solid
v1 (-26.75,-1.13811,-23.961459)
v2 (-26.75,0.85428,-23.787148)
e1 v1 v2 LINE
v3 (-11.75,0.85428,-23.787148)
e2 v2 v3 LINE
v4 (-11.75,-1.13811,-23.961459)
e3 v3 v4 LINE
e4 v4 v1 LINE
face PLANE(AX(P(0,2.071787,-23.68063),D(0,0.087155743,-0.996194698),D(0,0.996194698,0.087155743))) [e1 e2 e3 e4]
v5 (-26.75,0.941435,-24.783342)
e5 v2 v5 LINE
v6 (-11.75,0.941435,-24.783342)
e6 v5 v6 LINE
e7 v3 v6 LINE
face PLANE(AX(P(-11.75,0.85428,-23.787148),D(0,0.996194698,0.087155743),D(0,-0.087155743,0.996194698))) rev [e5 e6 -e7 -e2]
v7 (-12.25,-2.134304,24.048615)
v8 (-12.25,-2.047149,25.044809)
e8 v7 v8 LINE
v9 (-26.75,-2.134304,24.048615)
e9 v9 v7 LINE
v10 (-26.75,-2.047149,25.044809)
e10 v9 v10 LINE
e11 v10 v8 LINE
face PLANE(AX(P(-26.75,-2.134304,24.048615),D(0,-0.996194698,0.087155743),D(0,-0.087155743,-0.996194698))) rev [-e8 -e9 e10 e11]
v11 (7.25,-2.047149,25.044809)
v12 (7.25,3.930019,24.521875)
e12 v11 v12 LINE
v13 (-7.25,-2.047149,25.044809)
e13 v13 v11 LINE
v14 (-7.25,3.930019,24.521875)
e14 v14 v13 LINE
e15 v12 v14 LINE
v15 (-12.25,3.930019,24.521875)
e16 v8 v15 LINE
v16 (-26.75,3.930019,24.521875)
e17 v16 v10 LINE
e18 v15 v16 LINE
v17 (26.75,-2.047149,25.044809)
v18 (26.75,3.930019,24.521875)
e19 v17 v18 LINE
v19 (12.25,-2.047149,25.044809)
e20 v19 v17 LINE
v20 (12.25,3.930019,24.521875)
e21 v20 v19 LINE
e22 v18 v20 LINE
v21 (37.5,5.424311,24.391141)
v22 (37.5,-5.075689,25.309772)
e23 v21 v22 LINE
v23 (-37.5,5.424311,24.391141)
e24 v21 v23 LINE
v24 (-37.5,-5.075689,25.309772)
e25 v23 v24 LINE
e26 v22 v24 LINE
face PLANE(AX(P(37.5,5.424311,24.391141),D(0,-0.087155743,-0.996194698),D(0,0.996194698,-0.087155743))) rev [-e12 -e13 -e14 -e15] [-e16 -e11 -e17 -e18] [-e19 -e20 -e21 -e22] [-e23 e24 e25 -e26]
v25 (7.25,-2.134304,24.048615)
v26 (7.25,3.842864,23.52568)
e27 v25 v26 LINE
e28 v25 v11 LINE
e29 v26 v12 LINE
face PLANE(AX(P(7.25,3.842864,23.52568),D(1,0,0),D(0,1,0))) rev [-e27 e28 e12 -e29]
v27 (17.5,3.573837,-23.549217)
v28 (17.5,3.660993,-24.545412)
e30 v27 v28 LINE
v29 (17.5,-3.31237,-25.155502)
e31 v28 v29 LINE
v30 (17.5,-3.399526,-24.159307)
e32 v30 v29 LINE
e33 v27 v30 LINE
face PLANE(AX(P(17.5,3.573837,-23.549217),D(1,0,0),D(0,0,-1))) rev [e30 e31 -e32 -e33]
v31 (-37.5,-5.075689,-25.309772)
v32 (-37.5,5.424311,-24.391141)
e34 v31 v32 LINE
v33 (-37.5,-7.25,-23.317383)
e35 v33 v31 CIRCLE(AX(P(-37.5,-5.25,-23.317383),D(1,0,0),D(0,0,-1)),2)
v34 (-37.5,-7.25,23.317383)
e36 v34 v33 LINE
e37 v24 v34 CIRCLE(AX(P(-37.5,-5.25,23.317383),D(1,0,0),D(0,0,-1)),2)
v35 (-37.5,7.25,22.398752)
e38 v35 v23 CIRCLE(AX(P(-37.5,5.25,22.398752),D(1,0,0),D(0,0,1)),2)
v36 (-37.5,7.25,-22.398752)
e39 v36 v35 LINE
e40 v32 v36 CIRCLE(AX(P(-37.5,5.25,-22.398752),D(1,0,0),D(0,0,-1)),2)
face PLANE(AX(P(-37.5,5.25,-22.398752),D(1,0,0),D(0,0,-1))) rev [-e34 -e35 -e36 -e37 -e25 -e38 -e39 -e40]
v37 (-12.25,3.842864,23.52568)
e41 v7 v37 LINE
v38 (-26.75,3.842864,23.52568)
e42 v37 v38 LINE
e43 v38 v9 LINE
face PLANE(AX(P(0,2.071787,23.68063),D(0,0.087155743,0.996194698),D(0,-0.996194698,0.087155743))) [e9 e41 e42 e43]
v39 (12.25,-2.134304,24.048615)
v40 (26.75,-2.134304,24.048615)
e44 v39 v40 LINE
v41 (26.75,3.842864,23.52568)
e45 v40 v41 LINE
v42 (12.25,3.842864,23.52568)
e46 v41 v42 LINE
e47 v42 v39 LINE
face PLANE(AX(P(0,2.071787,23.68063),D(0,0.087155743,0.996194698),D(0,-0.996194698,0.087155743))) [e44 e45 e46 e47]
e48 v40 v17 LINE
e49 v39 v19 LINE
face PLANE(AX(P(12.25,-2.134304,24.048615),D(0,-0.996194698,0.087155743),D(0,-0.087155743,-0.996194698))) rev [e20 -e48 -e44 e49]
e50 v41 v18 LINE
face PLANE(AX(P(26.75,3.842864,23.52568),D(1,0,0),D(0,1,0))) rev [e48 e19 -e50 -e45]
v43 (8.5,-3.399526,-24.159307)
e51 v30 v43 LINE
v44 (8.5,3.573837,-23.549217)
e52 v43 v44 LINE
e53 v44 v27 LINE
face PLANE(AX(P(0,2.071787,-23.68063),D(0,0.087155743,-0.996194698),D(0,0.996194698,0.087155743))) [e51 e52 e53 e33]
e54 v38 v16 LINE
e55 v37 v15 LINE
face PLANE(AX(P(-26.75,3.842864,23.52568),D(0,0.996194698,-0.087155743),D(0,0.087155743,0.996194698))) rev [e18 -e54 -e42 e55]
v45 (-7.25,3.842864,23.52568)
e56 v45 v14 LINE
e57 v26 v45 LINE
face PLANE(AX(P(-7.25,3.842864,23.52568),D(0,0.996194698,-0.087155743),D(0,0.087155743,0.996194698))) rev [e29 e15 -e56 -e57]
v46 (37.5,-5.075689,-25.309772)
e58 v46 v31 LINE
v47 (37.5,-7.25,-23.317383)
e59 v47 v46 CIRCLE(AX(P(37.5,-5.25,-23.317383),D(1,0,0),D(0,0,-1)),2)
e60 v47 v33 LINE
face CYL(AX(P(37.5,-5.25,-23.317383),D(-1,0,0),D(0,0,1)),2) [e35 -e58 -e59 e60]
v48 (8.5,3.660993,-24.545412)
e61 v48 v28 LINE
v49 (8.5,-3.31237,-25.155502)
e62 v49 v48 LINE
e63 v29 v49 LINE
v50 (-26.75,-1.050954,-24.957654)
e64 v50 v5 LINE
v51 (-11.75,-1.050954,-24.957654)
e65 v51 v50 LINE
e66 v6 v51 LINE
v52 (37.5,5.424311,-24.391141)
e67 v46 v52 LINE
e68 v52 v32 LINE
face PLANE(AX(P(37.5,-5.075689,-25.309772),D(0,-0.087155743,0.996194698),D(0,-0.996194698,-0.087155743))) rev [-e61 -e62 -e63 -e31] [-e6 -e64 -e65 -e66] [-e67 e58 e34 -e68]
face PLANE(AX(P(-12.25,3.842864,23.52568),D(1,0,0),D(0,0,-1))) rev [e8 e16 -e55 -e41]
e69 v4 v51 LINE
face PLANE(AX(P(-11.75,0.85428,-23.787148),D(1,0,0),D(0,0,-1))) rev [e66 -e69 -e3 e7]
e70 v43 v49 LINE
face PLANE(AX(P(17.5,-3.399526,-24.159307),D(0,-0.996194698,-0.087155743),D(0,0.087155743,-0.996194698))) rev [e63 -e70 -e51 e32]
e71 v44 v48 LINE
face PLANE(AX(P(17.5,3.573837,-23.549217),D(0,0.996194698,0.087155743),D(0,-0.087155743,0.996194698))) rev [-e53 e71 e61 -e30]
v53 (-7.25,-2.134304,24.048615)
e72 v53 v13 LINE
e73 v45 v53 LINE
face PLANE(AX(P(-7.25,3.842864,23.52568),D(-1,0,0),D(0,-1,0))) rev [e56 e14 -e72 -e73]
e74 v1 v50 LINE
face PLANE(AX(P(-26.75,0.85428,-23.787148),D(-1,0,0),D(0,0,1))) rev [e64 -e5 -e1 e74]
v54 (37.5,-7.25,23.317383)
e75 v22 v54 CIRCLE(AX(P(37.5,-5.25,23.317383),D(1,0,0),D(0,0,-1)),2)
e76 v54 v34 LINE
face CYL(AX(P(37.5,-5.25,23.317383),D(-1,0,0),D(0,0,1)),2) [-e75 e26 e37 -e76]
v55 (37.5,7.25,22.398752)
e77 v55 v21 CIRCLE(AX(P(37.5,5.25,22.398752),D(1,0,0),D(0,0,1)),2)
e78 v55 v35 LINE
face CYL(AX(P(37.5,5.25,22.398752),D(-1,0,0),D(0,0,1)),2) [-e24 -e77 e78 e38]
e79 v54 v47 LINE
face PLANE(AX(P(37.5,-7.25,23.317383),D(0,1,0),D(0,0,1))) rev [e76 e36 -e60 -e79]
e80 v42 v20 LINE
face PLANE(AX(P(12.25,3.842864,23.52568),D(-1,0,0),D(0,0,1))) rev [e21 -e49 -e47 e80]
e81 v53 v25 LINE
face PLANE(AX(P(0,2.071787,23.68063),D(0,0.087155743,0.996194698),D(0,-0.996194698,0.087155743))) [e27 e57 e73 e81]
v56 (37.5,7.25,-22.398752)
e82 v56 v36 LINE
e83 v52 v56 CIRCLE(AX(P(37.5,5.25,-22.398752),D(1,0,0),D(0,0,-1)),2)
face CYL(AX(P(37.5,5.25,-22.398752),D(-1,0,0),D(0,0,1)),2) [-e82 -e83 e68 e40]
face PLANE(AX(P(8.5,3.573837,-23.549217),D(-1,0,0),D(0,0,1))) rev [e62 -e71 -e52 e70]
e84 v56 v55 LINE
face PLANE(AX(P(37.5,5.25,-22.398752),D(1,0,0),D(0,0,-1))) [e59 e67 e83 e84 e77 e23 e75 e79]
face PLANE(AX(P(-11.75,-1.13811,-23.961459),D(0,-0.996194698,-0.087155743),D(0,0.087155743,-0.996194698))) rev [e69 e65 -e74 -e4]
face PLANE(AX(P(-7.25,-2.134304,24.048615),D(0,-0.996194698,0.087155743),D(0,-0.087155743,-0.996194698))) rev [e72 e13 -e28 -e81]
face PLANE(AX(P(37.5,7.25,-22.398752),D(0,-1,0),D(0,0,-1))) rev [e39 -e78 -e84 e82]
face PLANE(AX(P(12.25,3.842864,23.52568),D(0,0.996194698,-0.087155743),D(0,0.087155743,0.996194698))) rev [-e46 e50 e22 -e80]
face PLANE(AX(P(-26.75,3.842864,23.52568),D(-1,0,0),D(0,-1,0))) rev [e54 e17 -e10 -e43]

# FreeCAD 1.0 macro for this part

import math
import FreeCAD as App
import Part
import Sketcher
Q = App.Units.Quantity

doc = App.newDocument("Part")
params = doc.addObject("Spreadsheet::Sheet", "Params")
for row, (alias, value) in enumerate([
    ("sketch1_radius", "2 mm"),
    ("pad1_length", "75 mm"),
    ("sketch2_height", "6 mm"),
    ("sketch2_width", "14.5 mm"),
    ("pocket1_length", "1 mm"),
    ("sketch3_width", "15 mm"),
    ("sketch3_width2", "9 mm"),
    ("sketch3_height", "2 mm"),
    ("sketch3_height2", "7 mm"),
    ("pocket2_length", "1 mm"),
], start=1):
    params.set(f"A{row}", alias)
    params.set(f"B{row}", "=" + value)
    params.setAlias(f"B{row}", alias)

body = doc.addObject("PartDesign::Body", "Body")

sketch1 = doc.addObject("Sketcher::SketchObject", "Sketch")
body.addObject(sketch1)
sketch1.AttachmentSupport = (doc.YZ_Plane, [""])
sketch1.MapMode = "FlatFace"
sketch1.addGeometry([
    Part.LineSegment(App.Vector(5.4, 24.4, 0), App.Vector(-5.1, 25.3, 0)),
    Part.ArcOfCircle(Part.Circle(App.Vector(-5.2, 23.3, 0), App.Vector(0, 0, 1), 2), math.radians(85), math.radians(180)),
    Part.LineSegment(App.Vector(-7.2, 23.3, 0), App.Vector(-7.2, -23.3, 0)),
    Part.ArcOfCircle(Part.Circle(App.Vector(-5.2, -23.3, 0), App.Vector(0, 0, 1), 2), math.radians(-180), math.radians(-85)),
    Part.LineSegment(App.Vector(-5.1, -25.3, 0), App.Vector(5.4, -24.4, 0)),
    Part.ArcOfCircle(Part.Circle(App.Vector(5.3, -22.4, 0), App.Vector(0, 0, 1), 2), math.radians(-85), math.radians(0)),
    Part.LineSegment(App.Vector(7.2, -22.4, 0), App.Vector(7.2, 22.4, 0)),
    Part.ArcOfCircle(Part.Circle(App.Vector(5.3, 22.4, 0), App.Vector(0, 0, 1), 2), math.radians(0), math.radians(85)),
], False)
sketch1.addConstraint([
    Sketcher.Constraint("Tangent", 0, 2, 1, 1),
    Sketcher.Constraint("Tangent", 1, 2, 2, 1),
    Sketcher.Constraint("Tangent", 2, 2, 3, 1),
    Sketcher.Constraint("Tangent", 3, 2, 4, 1),
    Sketcher.Constraint("Tangent", 4, 2, 5, 1),
    Sketcher.Constraint("Tangent", 5, 2, 6, 1),
    Sketcher.Constraint("Tangent", 6, 2, 7, 1),
    Sketcher.Constraint("Tangent", 7, 2, 0, 1),
    Sketcher.Constraint("Vertical", 2),
    Sketcher.Constraint("Vertical", 6),
    Sketcher.Constraint("Equal", 1, 3),
    Sketcher.Constraint("Equal", 3, 5),
    Sketcher.Constraint("Equal", 5, 7),
    Sketcher.Constraint("Symmetric", 0, 2, 3, 2, -1),
    Sketcher.Constraint("Radius", 1, 2.0),
    Sketcher.Constraint("Angle", 0, Q("175 deg")),
    Sketcher.Constraint("DistanceX", 3, 3, 5, 3, 10.5),
    Sketcher.Constraint("DistanceX", 1, 3, -1, 1, 5.25),
    Sketcher.Constraint("DistanceY", 2, 2, 2, 1, 46.634766),
])
sketch1.setExpression("Constraints[14]", "Params.sketch1_radius")
pad1 = doc.addObject("PartDesign::Pad", "Pad")
body.addObject(pad1)
pad1.Profile = sketch1
pad1.setExpression("Length", "Params.pad1_length")
pad1.Midplane = True

sketch2 = doc.addObject("Sketcher::SketchObject", "Sketch001")
body.addObject(sketch2)
sketch2.Placement = App.Placement(App.Vector(0, 2.158942, 24.676824), App.Rotation(App.Vector(1, 0, 0), App.Vector(0, 0.996194698, -0.087155743), App.Vector(0, 0.087155743, 0.996194698), "ZXY"))
sketch2.addGeometry([
    Part.LineSegment(App.Vector(-27, 2, 0), App.Vector(-27, -4, 0)),
    Part.LineSegment(App.Vector(-27, -4, 0), App.Vector(-12, -4, 0)),
    Part.LineSegment(App.Vector(-12, -4, 0), App.Vector(-12, 2, 0)),
    Part.LineSegment(App.Vector(-12, 2, 0), App.Vector(-27, 2, 0)),
    Part.LineSegment(App.Vector(-7, 2, 0), App.Vector(-7, -4, 0)),
    Part.LineSegment(App.Vector(-7, -4, 0), App.Vector(7, -4, 0)),
    Part.LineSegment(App.Vector(7, -4, 0), App.Vector(7, 2, 0)),
    Part.LineSegment(App.Vector(7, 2, 0), App.Vector(-7, 2, 0)),
    Part.LineSegment(App.Vector(12, 2, 0), App.Vector(12, -4, 0)),
    Part.LineSegment(App.Vector(12, -4, 0), App.Vector(27, -4, 0)),
    Part.LineSegment(App.Vector(27, -4, 0), App.Vector(27, 2, 0)),
    Part.LineSegment(App.Vector(27, 2, 0), App.Vector(12, 2, 0)),
], False)
sketch2.addConstraint([
    Sketcher.Constraint("Coincident", 0, 2, 1, 1),
    Sketcher.Constraint("Coincident", 1, 2, 2, 1),
    Sketcher.Constraint("Coincident", 2, 2, 3, 1),
    Sketcher.Constraint("Coincident", 3, 2, 0, 1),
    Sketcher.Constraint("Coincident", 4, 2, 5, 1),
    Sketcher.Constraint("Coincident", 5, 2, 6, 1),
    Sketcher.Constraint("Coincident", 6, 2, 7, 1),
    Sketcher.Constraint("Coincident", 7, 2, 4, 1),
    Sketcher.Constraint("Coincident", 8, 2, 9, 1),
    Sketcher.Constraint("Coincident", 9, 2, 10, 1),
    Sketcher.Constraint("Coincident", 10, 2, 11, 1),
    Sketcher.Constraint("Coincident", 11, 2, 8, 1),
    Sketcher.Constraint("Vertical", 0),
    Sketcher.Constraint("Horizontal", 1),
    Sketcher.Constraint("Vertical", 2),
    Sketcher.Constraint("Horizontal", 3),
    Sketcher.Constraint("Vertical", 4),
    Sketcher.Constraint("Horizontal", 5),
    Sketcher.Constraint("Vertical", 6),
    Sketcher.Constraint("Horizontal", 7),
    Sketcher.Constraint("Vertical", 8),
    Sketcher.Constraint("Horizontal", 9),
    Sketcher.Constraint("Vertical", 10),
    Sketcher.Constraint("Horizontal", 11),
    Sketcher.Constraint("Symmetric", 1, 2, 8, 2, -2),
    Sketcher.Constraint("Symmetric", 3, 2, 10, 2, -2),
    Sketcher.Constraint("Horizontal", 1, 2, 4, 2),
    Sketcher.Constraint("Horizontal", 3, 2, 6, 2),
    Sketcher.Constraint("Equal", 3, 5),
    Sketcher.Constraint("DistanceY", 0, 2, 0, 1, 6.0),
    Sketcher.Constraint("DistanceX", 1, 1, 1, 2, 14.5),
    Sketcher.Constraint("DistanceX", 1, 2, 4, 2, 5.0),
    Sketcher.Constraint("DistanceX", 5, 2, 8, 2, 5.0),
    Sketcher.Constraint("DistanceY", 0, 2, -1, 1, 4.222158),
])
sketch2.setExpression("Constraints[29]", "Params.sketch2_height")
sketch2.setExpression("Constraints[30]", "Params.sketch2_width")
pocket1 = doc.addObject("PartDesign::Pocket", "Pocket")
body.addObject(pocket1)
pocket1.Profile = sketch2
pocket1.setExpression("Length", "Params.pocket1_length")

sketch3 = doc.addObject("Sketcher::SketchObject", "Sketch002")
body.addObject(sketch3)
sketch3.Placement = App.Placement(App.Vector(0, 2.158942, -24.676824), App.Rotation(App.Vector(-1, 0, 0), App.Vector(0, 0.996194698, 0.087155743), App.Vector(0, 0.087155743, -0.996194698), "ZXY"))
sketch3.addGeometry([
    Part.LineSegment(App.Vector(11.8, -1.2, 0), App.Vector(11.8, -3.2, 0)),
    Part.LineSegment(App.Vector(11.8, -3.2, 0), App.Vector(26.8, -3.2, 0)),
    Part.LineSegment(App.Vector(26.8, -3.2, 0), App.Vector(26.8, -1.2, 0)),
    Part.LineSegment(App.Vector(26.8, -1.2, 0), App.Vector(11.8, -1.2, 0)),
    Part.LineSegment(App.Vector(-17.5, 1.5, 0), App.Vector(-17.5, -5.5, 0)),
    Part.LineSegment(App.Vector(-17.5, -5.5, 0), App.Vector(-8.5, -5.5, 0)),
    Part.LineSegment(App.Vector(-8.5, -5.5, 0), App.Vector(-8.5, 1.5, 0)),
    Part.LineSegment(App.Vector(-8.5, 1.5, 0), App.Vector(-17.5, 1.5, 0)),
], False)
sketch3.addConstraint([
    Sketcher.Constraint("Coincident", 0, 2, 1, 1),
    Sketcher.Constraint("Coincident", 1, 2, 2, 1),
    Sketcher.Constraint("Coincident", 2, 2, 3, 1),
    Sketcher.Constraint("Coincident", 3, 2, 0, 1),
    Sketcher.Constraint("Coincident", 4, 2, 5, 1),
    Sketcher.Constraint("Coincident", 5, 2, 6, 1),
    Sketcher.Constraint("Coincident", 6, 2, 7, 1),
    Sketcher.Constraint("Coincident", 7, 2, 4, 1),
    Sketcher.Constraint("Vertical", 0),
    Sketcher.Constraint("Horizontal", 1),
    Sketcher.Constraint("Vertical", 2),
    Sketcher.Constraint("Horizontal", 3),
    Sketcher.Constraint("Vertical", 4),
    Sketcher.Constraint("Horizontal", 5),
    Sketcher.Constraint("Vertical", 6),
    Sketcher.Constraint("Horizontal", 7),
    Sketcher.Constraint("DistanceX", 1, 1, 1, 2, 15.0),
    Sketcher.Constraint("DistanceX", 5, 1, 5, 2, 9.0),
    Sketcher.Constraint("DistanceY", 0, 2, 0, 1, 2.0),
    Sketcher.Constraint("DistanceY", 4, 2, 4, 1, 7.0),
    Sketcher.Constraint("DistanceX", 4, 2, -1, 1, 17.5),
    Sketcher.Constraint("DistanceX", -1, 1, 0, 2, 11.75),
    Sketcher.Constraint("DistanceY", 4, 2, -1, 1, 5.492212),
    Sketcher.Constraint("DistanceY", 0, 2, -1, 1, 3.222158),
])
sketch3.setExpression("Constraints[16]", "Params.sketch3_width")
sketch3.setExpression("Constraints[17]", "Params.sketch3_width2")
sketch3.setExpression("Constraints[18]", "Params.sketch3_height")
sketch3.setExpression("Constraints[19]", "Params.sketch3_height2")
pocket2 = doc.addObject("PartDesign::Pocket", "Pocket001")
body.addObject(pocket2)
pocket2.Profile = sketch3
pocket2.setExpression("Length", "Params.pocket2_length")

doc.recompute()
